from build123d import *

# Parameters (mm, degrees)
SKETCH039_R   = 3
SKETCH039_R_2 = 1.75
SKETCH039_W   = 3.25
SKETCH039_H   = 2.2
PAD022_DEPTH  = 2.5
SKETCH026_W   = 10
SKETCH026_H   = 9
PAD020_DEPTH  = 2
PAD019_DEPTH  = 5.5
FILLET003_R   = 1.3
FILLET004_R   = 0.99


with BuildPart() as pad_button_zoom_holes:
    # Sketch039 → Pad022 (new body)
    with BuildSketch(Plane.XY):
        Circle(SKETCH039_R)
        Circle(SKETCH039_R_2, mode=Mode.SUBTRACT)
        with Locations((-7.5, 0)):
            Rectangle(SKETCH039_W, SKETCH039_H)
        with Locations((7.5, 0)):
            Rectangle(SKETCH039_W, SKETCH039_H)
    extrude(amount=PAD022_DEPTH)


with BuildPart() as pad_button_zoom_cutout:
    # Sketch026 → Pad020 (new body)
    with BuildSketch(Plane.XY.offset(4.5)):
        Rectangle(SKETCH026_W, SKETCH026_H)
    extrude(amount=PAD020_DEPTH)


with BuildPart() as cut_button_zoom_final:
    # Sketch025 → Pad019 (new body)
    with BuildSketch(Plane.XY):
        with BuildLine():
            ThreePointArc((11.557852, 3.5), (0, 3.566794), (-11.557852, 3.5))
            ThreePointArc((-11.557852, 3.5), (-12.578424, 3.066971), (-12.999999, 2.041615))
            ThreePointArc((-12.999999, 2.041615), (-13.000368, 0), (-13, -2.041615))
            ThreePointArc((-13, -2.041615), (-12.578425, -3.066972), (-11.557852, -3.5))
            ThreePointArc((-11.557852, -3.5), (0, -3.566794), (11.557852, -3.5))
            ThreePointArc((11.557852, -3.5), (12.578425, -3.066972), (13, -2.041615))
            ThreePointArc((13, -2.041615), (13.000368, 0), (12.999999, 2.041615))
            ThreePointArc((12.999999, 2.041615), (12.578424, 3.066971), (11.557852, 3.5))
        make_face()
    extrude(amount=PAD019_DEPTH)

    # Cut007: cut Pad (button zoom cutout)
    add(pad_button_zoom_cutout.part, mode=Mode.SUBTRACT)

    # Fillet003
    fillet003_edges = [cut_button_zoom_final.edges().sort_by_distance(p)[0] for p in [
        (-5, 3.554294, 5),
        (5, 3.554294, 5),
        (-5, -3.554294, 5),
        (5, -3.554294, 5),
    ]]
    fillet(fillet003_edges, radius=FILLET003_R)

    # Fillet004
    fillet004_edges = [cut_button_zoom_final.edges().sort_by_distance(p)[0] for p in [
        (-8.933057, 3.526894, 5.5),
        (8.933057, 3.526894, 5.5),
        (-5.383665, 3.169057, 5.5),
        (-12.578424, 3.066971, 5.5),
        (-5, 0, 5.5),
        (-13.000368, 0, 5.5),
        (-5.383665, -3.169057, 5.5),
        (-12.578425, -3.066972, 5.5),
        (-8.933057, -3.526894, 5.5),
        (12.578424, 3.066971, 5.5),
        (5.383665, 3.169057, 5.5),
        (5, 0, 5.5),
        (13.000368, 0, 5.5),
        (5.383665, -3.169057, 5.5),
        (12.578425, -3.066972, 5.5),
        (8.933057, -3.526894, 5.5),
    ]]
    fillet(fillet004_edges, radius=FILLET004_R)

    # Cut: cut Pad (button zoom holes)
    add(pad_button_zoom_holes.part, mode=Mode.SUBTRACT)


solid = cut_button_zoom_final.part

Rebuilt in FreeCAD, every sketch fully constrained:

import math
import FreeCAD as App
import Part
import Sketcher


def edges_at(feature, points):
    """Names of the edges that pass closest to the given points."""
    edges = feature.Shape.Edges
    near = lambda p: min(range(len(edges)), key=lambda i: edges[i].distToShape(Part.Vertex(*p))[0])
    return sorted({f"Edge{near(p) + 1}" for p in points})

doc = App.newDocument("Part")
body = doc.addObject("PartDesign::Body", "Body")
body.AllowCompound = True

sketch1 = doc.addObject("Sketcher::SketchObject", "Sketch")
body.addObject(sketch1)
sketch1.AttachmentSupport = (doc.XY_Plane, [""])
sketch1.MapMode = "FlatFace"
sketch1.addGeometry(Part.Circle(App.Vector(0, 0, 0), App.Vector(0, 0, 1), 3), False)
sketch1.addGeometry(Part.Circle(App.Vector(0, 0, 0), App.Vector(0, 0, 1), 1.8), False)
sketch1.addGeometry(Part.LineSegment(App.Vector(-9.1, 1.1, 0), App.Vector(-9.1, -1.1, 0)), False)
sketch1.addGeometry(Part.LineSegment(App.Vector(-9.1, -1.1, 0), App.Vector(-5.9, -1.1, 0)), False)
sketch1.addGeometry(Part.LineSegment(App.Vector(-5.9, -1.1, 0), App.Vector(-5.9, 1.1, 0)), False)
sketch1.addGeometry(Part.LineSegment(App.Vector(-5.9, 1.1, 0), App.Vector(-9.1, 1.1, 0)), False)
sketch1.addGeometry(Part.LineSegment(App.Vector(5.9, 1.1, 0), App.Vector(5.9, -1.1, 0)), False)
sketch1.addGeometry(Part.LineSegment(App.Vector(5.9, -1.1, 0), App.Vector(9.1, -1.1, 0)), False)
sketch1.addGeometry(Part.LineSegment(App.Vector(9.1, -1.1, 0), App.Vector(9.1, 1.1, 0)), False)
sketch1.addGeometry(Part.LineSegment(App.Vector(9.1, 1.1, 0), App.Vector(5.9, 1.1, 0)), False)
sketch1.addConstraint(Sketcher.Constraint("Coincident", 2, 2, 3, 1))
sketch1.addConstraint(Sketcher.Constraint("Coincident", 3, 2, 4, 1))
sketch1.addConstraint(Sketcher.Constraint("Coincident", 4, 2, 5, 1))
sketch1.addConstraint(Sketcher.Constraint("Coincident", 5, 2, 2, 1))
sketch1.addConstraint(Sketcher.Constraint("Coincident", 6, 2, 7, 1))
sketch1.addConstraint(Sketcher.Constraint("Coincident", 7, 2, 8, 1))
sketch1.addConstraint(Sketcher.Constraint("Coincident", 8, 2, 9, 1))
sketch1.addConstraint(Sketcher.Constraint("Coincident", 9, 2, 6, 1))
sketch1.addConstraint(Sketcher.Constraint("Vertical", 2))
sketch1.addConstraint(Sketcher.Constraint("Horizontal", 3))
sketch1.addConstraint(Sketcher.Constraint("Vertical", 4))
sketch1.addConstraint(Sketcher.Constraint("Horizontal", 5))
sketch1.addConstraint(Sketcher.Constraint("Vertical", 6))
sketch1.addConstraint(Sketcher.Constraint("Horizontal", 7))
sketch1.addConstraint(Sketcher.Constraint("Vertical", 8))
sketch1.addConstraint(Sketcher.Constraint("Horizontal", 9))
sketch1.addConstraint(Sketcher.Constraint("Coincident", 0, 3, -1, 1))
sketch1.addConstraint(Sketcher.Constraint("Coincident", 1, 3, -1, 1))
sketch1.addConstraint(Sketcher.Constraint("Symmetric", 4, 2, 6, 2, -1, 1))
sketch1.addConstraint(Sketcher.Constraint("Symmetric", 2, 2, 8, 2, -1, 1))
sketch1.addConstraint(Sketcher.Constraint("Horizontal", 3, 2, 6, 2))
sketch1.addConstraint(Sketcher.Constraint("Diameter", 0, 6.0))
sketch1.addConstraint(Sketcher.Constraint("Diameter", 1, 3.5))
sketch1.addConstraint(Sketcher.Constraint("DistanceY", 2, 2, 2, 1, 2.2))
sketch1.addConstraint(Sketcher.Constraint("DistanceX", 2, 2, 6, 2, 15.0))
sketch1.addConstraint(Sketcher.Constraint("DistanceX", 3, 1, 3, 2, 3.25))
pad1 = doc.addObject("PartDesign::Pad", "Pad")
body.addObject(pad1)
pad1.Profile = sketch1
pad1.Length = 2.5
body2 = doc.addObject("PartDesign::Body", "Body001")

sketch2 = doc.addObject("Sketcher::SketchObject", "Sketch001")
body2.addObject(sketch2)
sketch2.AttachmentSupport = (doc.getObject("XY_Plane001"), [""])
sketch2.MapMode = "FlatFace"
sketch2.AttachmentOffset = App.Placement(App.Vector(0, 0, 4.5), App.Rotation())
sketch2.addGeometry(Part.LineSegment(App.Vector(-5, 4, 0), App.Vector(-5, -4, 0)), False)
sketch2.addGeometry(Part.LineSegment(App.Vector(-5, -4, 0), App.Vector(5, -4, 0)), False)
sketch2.addGeometry(Part.LineSegment(App.Vector(5, -4, 0), App.Vector(5, 4, 0)), False)
sketch2.addGeometry(Part.LineSegment(App.Vector(5, 4, 0), App.Vector(-5, 4, 0)), False)
sketch2.addConstraint(Sketcher.Constraint("Coincident", 0, 2, 1, 1))
sketch2.addConstraint(Sketcher.Constraint("Coincident", 1, 2, 2, 1))
sketch2.addConstraint(Sketcher.Constraint("Coincident", 2, 2, 3, 1))
sketch2.addConstraint(Sketcher.Constraint("Coincident", 3, 2, 0, 1))
sketch2.addConstraint(Sketcher.Constraint("Vertical", 0))
sketch2.addConstraint(Sketcher.Constraint("Horizontal", 1))
sketch2.addConstraint(Sketcher.Constraint("Vertical", 2))
sketch2.addConstraint(Sketcher.Constraint("Horizontal", 3))
sketch2.addConstraint(Sketcher.Constraint("Symmetric", 0, 2, 2, 2, -1, 1))
sketch2.addConstraint(Sketcher.Constraint("DistanceX", 1, 1, 1, 2, 10.0))
sketch2.addConstraint(Sketcher.Constraint("DistanceY", 0, 2, 0, 1, 9.0))
pad2 = doc.addObject("PartDesign::Pad", "Pad001")
body2.addObject(pad2)
pad2.Profile = sketch2
pad2.Length = 2
body3 = doc.addObject("PartDesign::Body", "Body002")

sketch3 = doc.addObject("Sketcher::SketchObject", "Sketch002")
body3.addObject(sketch3)
sketch3.AttachmentSupport = (doc.getObject("XY_Plane002"), [""])
sketch3.MapMode = "FlatFace"
sketch3.addGeometry(Part.ArcOfCircle(Part.Circle(App.Vector(0, -996.4, 0), App.Vector(0, 0, 1), 1000), math.radians(89.34), math.radians(90.66)), False)
sketch3.addGeometry(Part.ArcOfCircle(Part.Circle(App.Vector(-11.5, 2, 0), App.Vector(0, 0, 1), 1.5), math.radians(91), math.radians(180)), False)
sketch3.addGeometry(Part.ArcOfCircle(Part.Circle(App.Vector(5642.6, 0, 0), App.Vector(0, 0, 1), 5655.6), math.radians(179.98), math.radians(180.02)), False)
sketch3.addGeometry(Part.ArcOfCircle(Part.Circle(App.Vector(-11.5, -2, 0), App.Vector(0, 0, 1), 1.5), math.radians(-180), math.radians(-91)), False)
sketch3.addGeometry(Part.ArcOfCircle(Part.Circle(App.Vector(0, 996.4, 0), App.Vector(0, 0, 1), 1000), math.radians(-90.66), math.radians(-89.34)), False)
sketch3.addGeometry(Part.ArcOfCircle(Part.Circle(App.Vector(11.5, -2, 0), App.Vector(0, 0, 1), 1.5), math.radians(-89), math.radians(0)), False)
sketch3.addGeometry(Part.ArcOfCircle(Part.Circle(App.Vector(-5642.6, 0, 0), App.Vector(0, 0, 1), 5655.6), math.radians(-0.02), math.radians(0.02)), False)
sketch3.addGeometry(Part.ArcOfCircle(Part.Circle(App.Vector(11.5, 2, 0), App.Vector(0, 0, 1), 1.5), math.radians(0), math.radians(89)), False)
sketch3.addConstraint(Sketcher.Constraint("Tangent", 0, 2, 1, 1))
sketch3.addConstraint(Sketcher.Constraint("Tangent", 1, 2, 2, 1))
sketch3.addConstraint(Sketcher.Constraint("Tangent", 2, 2, 3, 1))
sketch3.addConstraint(Sketcher.Constraint("Tangent", 3, 2, 4, 1))
sketch3.addConstraint(Sketcher.Constraint("Tangent", 4, 2, 5, 1))
sketch3.addConstraint(Sketcher.Constraint("Tangent", 5, 2, 6, 1))
sketch3.addConstraint(Sketcher.Constraint("Tangent", 6, 2, 7, 1))
sketch3.addConstraint(Sketcher.Constraint("Tangent", 7, 2, 0, 1))
sketch3.addConstraint(Sketcher.Constraint("Equal", 1, 3))
sketch3.addConstraint(Sketcher.Constraint("Equal", 0, 4))
sketch3.addConstraint(Sketcher.Constraint("Equal", 3, 5))
sketch3.addConstraint(Sketcher.Constraint("Equal", 2, 6))
sketch3.addConstraint(Sketcher.Constraint("Equal", 5, 7))
sketch3.addConstraint(Sketcher.Constraint("Symmetric", 0, 3, 4, 3, -1, 1))
sketch3.addConstraint(Sketcher.Constraint("Symmetric", 3, 3, 5, 3, -2))
sketch3.addConstraint(Sketcher.Constraint("Horizontal", 2, 3, 6, 3))
sketch3.addConstraint(Sketcher.Constraint("DistanceX", 1, 2, -1, 1, 12.999999))
sketch3.addConstraint(Sketcher.Constraint("DistanceY", 3, 2, 0, 2, 7.0))
sketch3.addConstraint(Sketcher.Constraint("Radius", 1, 1.459012))
sketch3.addConstraint(Sketcher.Constraint("Radius", 2, 5655.620008))
sketch3.addConstraint(Sketcher.Constraint("Radius", 0, 1000.003026))
sketch3.addConstraint(Sketcher.Constraint("DistanceY", 2, 3, 1, 3, 2.042471))
pad3 = doc.addObject("PartDesign::Pad", "Pad002")
body3.addObject(pad3)
pad3.Profile = sketch3
pad3.Length = 5.5
doc.recompute()

boolean = doc.addObject("PartDesign::Boolean", "Boolean")
body3.addObject(boolean)
boolean.Type = "Cut"
boolean.addObjects([body2])
doc.recompute()

fillet = doc.addObject("PartDesign::Fillet", "Fillet")
body3.addObject(fillet)
fillet.Base = (boolean, edges_at(boolean, [
    (-5, 3.554, 5),
    (5, 3.554, 5),
    (-5, -3.554, 5),
    (5, -3.554, 5),
]))
fillet.Radius = 1.3
doc.recompute()

fillet2 = doc.addObject("PartDesign::Fillet", "Fillet001")
body3.addObject(fillet2)
fillet2.Base = (fillet, edges_at(fillet, [
    (-8.933, 3.527, 5.5),
    (8.933, 3.527, 5.5),
    (-5.384, 3.169, 5.5),
    (-12.578, 3.067, 5.5),
    (-5, 0, 5.5),
    (-13, 0, 5.5),
    (-5.384, -3.169, 5.5),
    (-12.578, -3.067, 5.5),
    (-8.933, -3.527, 5.5),
    (12.578, 3.067, 5.5),
    (5.384, 3.169, 5.5),
    (5, 0, 5.5),
    (13, 0, 5.5),
    (5.384, -3.169, 5.5),
    (12.578, -3.067, 5.5),
    (8.933, -3.527, 5.5),
]))
fillet2.Radius = 0.99
doc.recompute()

boolean2 = doc.addObject("PartDesign::Boolean", "Boolean001")
body3.addObject(boolean2)
boolean2.Type = "Cut"
boolean2.addObjects([body])

doc.recompute()
